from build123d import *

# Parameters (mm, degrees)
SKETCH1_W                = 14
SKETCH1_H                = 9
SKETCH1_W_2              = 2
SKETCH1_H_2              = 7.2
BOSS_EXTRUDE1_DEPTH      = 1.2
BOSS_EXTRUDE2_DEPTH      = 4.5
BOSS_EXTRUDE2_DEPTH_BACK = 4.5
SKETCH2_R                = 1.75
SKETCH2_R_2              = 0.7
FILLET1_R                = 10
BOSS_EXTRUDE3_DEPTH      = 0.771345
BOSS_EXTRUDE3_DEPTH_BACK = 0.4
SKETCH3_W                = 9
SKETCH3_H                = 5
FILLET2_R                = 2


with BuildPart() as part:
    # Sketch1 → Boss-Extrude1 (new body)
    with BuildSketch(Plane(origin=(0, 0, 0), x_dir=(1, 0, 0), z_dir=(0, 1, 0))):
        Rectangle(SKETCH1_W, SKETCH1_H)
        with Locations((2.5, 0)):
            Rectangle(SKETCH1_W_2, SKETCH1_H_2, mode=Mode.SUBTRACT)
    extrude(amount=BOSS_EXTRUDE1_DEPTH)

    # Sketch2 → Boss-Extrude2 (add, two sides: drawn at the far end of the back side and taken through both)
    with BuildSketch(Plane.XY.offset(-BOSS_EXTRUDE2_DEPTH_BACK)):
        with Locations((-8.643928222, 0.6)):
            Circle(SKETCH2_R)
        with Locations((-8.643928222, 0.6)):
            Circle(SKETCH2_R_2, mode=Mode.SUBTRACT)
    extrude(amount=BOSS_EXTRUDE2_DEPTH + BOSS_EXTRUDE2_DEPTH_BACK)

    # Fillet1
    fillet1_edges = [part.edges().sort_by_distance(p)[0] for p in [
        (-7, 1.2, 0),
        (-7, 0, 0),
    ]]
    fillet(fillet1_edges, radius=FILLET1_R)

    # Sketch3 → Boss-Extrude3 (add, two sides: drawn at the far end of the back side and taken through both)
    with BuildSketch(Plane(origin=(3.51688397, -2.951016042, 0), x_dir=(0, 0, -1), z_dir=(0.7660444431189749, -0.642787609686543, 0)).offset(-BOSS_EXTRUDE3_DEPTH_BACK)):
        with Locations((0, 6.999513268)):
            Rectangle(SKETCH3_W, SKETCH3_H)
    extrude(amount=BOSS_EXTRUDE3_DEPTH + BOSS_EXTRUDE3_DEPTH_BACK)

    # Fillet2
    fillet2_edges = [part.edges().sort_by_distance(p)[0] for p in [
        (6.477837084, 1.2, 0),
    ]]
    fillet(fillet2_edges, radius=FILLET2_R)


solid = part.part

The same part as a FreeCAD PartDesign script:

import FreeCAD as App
import Part
import Sketcher
Q = App.Units.Quantity


def edges_at(feature, points):
    """Names of the edges that pass closest to the given points."""
    edges = feature.Shape.Edges
    near = lambda p: min(range(len(edges)), key=lambda i: edges[i].distToShape(Part.Vertex(*p))[0])
    return sorted({f"Edge{near(p) + 1}" for p in points})


def add_polygon(sketch, points):
    """Adds a closed chain of lines whose ends are joined by coincident constraints."""
    first, n = sketch.GeometryCount, len(points)
    for a, b in zip(points, points[1:] + points[:1]):
        sketch.addGeometry(Part.LineSegment(App.Vector(*a, 0), App.Vector(*b, 0)), False)
    for i in range(n):
        sketch.addConstraint(Sketcher.Constraint("Coincident", first + i, 2, first + (i + 1) % n, 1))

doc = App.newDocument("Part")
body = doc.addObject("PartDesign::Body", "Body")

sketch1 = body.newObject("Sketcher::SketchObject", "Sketch")
sketch1.AttachmentSupport = (doc.getObject("XZ_Plane"), [""])
sketch1.MapMode = "FlatFace"
add_polygon(sketch1, [(-7, -4.5), (-7, 4.5), (7, 4.5), (7, -4.5)])
add_polygon(sketch1, [(3.5, 3.6), (1.5, 3.6), (1.5, -3.6), (3.5, -3.6)])
sketch1.addConstraint(Sketcher.Constraint("Vertical", 0))
sketch1.addConstraint(Sketcher.Constraint("Horizontal", 1))
sketch1.addConstraint(Sketcher.Constraint("Vertical", 2))
sketch1.addConstraint(Sketcher.Constraint("Horizontal", 3))
sketch1.addConstraint(Sketcher.Constraint("Horizontal", 4))
sketch1.addConstraint(Sketcher.Constraint("Vertical", 5))
sketch1.addConstraint(Sketcher.Constraint("Horizontal", 6))
sketch1.addConstraint(Sketcher.Constraint("Vertical", 7))
sketch1.addConstraint(Sketcher.Constraint("Symmetric", 0, 2, 2, 2, -1, 1))
sketch1.addConstraint(Sketcher.Constraint("DistanceX", 1, 1, 1, 2, Q("14 mm")))
sketch1.addConstraint(Sketcher.Constraint("DistanceX", 4, 2, 4, 1, Q("2 mm")))
sketch1.addConstraint(Sketcher.Constraint("DistanceY", 0, 1, 0, 2, Q("9 mm")))
sketch1.addConstraint(Sketcher.Constraint("DistanceY", 5, 2, 5, 1, Q("7.2 mm")))
sketch1.addConstraint(Sketcher.Constraint("DistanceX", -1, 1, 4, 2, Q("1.5 mm")))
sketch1.addConstraint(Sketcher.Constraint("DistanceY", -1, 1, 4, 2, Q("3.6 mm")))
pad1 = body.newObject("PartDesign::Pad", "Pad")
pad1.Profile = sketch1
pad1.Length = 1.2
pad1.Reversed = True

sketch2 = body.newObject("Sketcher::SketchObject", "Sketch001")
sketch2.AttachmentSupport = (doc.getObject("XY_Plane"), [""])
sketch2.MapMode = "FlatFace"
sketch2.addGeometry(Part.Circle(App.Vector(-8.6, 0.6, 0), App.Vector(0, 0, 1), 1.8), False)
sketch2.addGeometry(Part.Circle(App.Vector(-8.6, 0.6, 0), App.Vector(0, 0, 1), 0.7), False)
sketch2.addConstraint(Sketcher.Constraint("Coincident", 1, 3, 0, 3))
sketch2.addConstraint(Sketcher.Constraint("Diameter", 0, Q("3.5 mm")))
sketch2.addConstraint(Sketcher.Constraint("Diameter", 1, Q("1.4 mm")))
sketch2.addConstraint(Sketcher.Constraint("DistanceY", -1, 1, 0, 3, Q("0.6 mm")))
sketch2.addConstraint(Sketcher.Constraint("DistanceX", 0, 3, -1, 1, Q("8.643928 mm")))
pad2 = body.newObject("PartDesign::Pad", "Pad001")
pad2.Profile = sketch2
pad2.Type = "TwoLengths"
pad2.Length = 4.5
pad2.Length2 = 4.5
doc.recompute()

fillet = body.newObject("PartDesign::Fillet", "Fillet")
fillet.Base = (pad2, edges_at(pad2, [(-7, 1.2, 0), (-7, 0, 0)]))
fillet.Radius = 10

sketch3 = body.newObject("Sketcher::SketchObject", "Sketch002")
sketch3.Placement = App.Placement(App.Vector(3.516884, -2.951016, 0), App.Rotation(App.Vector(0, 0, -1), App.Vector(0.64278761, 0.766044443, 0), App.Vector(0.766044443, -0.64278761, 0), "ZXY"))
add_polygon(sketch3, [(-4, 9), (-4, 4), (4, 4), (4, 9)])
sketch3.addConstraint(Sketcher.Constraint("Vertical", 0))
sketch3.addConstraint(Sketcher.Constraint("Horizontal", 1))
sketch3.addConstraint(Sketcher.Constraint("Vertical", 2))
sketch3.addConstraint(Sketcher.Constraint("Horizontal", 3))
sketch3.addConstraint(Sketcher.Constraint("DistanceX", 1, 1, 1, 2, Q("9 mm")))
sketch3.addConstraint(Sketcher.Constraint("DistanceY", 0, 2, 0, 1, Q("5 mm")))
sketch3.addConstraint(Sketcher.Constraint("DistanceX", 0, 2, -1, 1, Q("4.5 mm")))
sketch3.addConstraint(Sketcher.Constraint("DistanceY", -1, 1, 0, 2, Q("4.499513 mm")))
pad3 = body.newObject("PartDesign::Pad", "Pad002")
pad3.Profile = sketch3
pad3.Type = "TwoLengths"
pad3.Length = 0.771345
pad3.Length2 = 0.4
doc.recompute()

fillet2 = body.newObject("PartDesign::Fillet", "Fillet001")
fillet2.Base = (pad3, edges_at(pad3, [(6.478, 1.2, 0)]))
fillet2.Radius = 2

doc.recompute()
